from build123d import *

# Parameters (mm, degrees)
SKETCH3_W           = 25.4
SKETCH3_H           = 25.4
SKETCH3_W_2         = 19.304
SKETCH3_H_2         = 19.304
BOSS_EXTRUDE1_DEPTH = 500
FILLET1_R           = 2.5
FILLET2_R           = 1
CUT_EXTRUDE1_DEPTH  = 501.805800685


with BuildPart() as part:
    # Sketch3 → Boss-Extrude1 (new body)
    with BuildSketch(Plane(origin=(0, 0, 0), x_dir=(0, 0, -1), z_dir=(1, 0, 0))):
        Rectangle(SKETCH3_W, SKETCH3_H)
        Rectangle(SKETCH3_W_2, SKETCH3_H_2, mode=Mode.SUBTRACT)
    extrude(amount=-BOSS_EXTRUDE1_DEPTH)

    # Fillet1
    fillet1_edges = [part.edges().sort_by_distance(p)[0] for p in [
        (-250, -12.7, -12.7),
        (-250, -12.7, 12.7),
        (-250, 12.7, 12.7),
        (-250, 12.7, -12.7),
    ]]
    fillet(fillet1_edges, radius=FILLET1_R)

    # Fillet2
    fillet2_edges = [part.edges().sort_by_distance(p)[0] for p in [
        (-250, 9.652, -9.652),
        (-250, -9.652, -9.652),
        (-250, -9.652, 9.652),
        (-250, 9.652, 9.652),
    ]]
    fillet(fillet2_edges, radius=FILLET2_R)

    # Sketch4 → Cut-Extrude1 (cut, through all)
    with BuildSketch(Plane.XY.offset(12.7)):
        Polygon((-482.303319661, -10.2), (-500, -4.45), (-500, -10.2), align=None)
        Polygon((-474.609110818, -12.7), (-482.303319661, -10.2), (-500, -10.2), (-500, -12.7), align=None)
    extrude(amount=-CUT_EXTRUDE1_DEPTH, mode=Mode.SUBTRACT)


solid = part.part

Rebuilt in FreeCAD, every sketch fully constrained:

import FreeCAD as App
import Part
import Sketcher

V = App.Vector
Q = App.Units.Quantity


def edges_at(feature, points):
    """Names of the edges that pass closest to the given points."""
    edges = feature.Shape.Edges
    near = lambda p: min(range(len(edges)), key=lambda i: edges[i].distToShape(Part.Vertex(*p))[0])
    return sorted({f"Edge{near(p) + 1}" for p in points})


def add_polygon(sketch, points):
    """Adds a closed chain of lines whose ends are joined by coincident constraints."""
    first, n = sketch.GeometryCount, len(points)
    for a, b in zip(points, points[1:] + points[:1]):
        sketch.addGeometry(Part.LineSegment(App.Vector(*a, 0), App.Vector(*b, 0)), False)
    for i in range(n):
        sketch.addConstraint(Sketcher.Constraint("Coincident", first + i, 2, first + (i + 1) % n, 1))

doc = App.newDocument("Part")
body = doc.addObject("PartDesign::Body", "Body")

# Sketch on YZ plane
sketch1 = body.newObject("Sketcher::SketchObject", "Sketch")
sketch1.AttachmentSupport = (doc.getObject("YZ_Plane"), [""])
sketch1.MapMode = "FlatFace"
add_polygon(sketch1, [(13, 13), (-13, 13), (-13, -13), (13, -13)])  # lines 0-3
add_polygon(sketch1, [(-10, -10), (-10, 10), (10, 10), (10, -10)])  # lines 4-7
sketch1.addConstraint(Sketcher.Constraint("Horizontal", 0))
sketch1.addConstraint(Sketcher.Constraint("Vertical", 1))
sketch1.addConstraint(Sketcher.Constraint("Horizontal", 2))
sketch1.addConstraint(Sketcher.Constraint("Vertical", 3))
sketch1.addConstraint(Sketcher.Constraint("Vertical", 4))
sketch1.addConstraint(Sketcher.Constraint("Horizontal", 5))
sketch1.addConstraint(Sketcher.Constraint("Vertical", 6))
sketch1.addConstraint(Sketcher.Constraint("Horizontal", 7))
sketch1.addConstraint(Sketcher.Constraint("Symmetric", 0, 2, 2, 2, -1, 1))
sketch1.addConstraint(Sketcher.Constraint("Symmetric", 4, 2, 6, 2, -1, 1))
sketch1.addConstraint(Sketcher.Constraint("Equal", 2, 1))
sketch1.addConstraint(Sketcher.Constraint("Equal", 7, 4))
sketch1.addConstraint(Sketcher.Constraint("DistanceX", 0, 2, 0, 1, Q("25.4 mm")))
sketch1.addConstraint(Sketcher.Constraint("DistanceX", 5, 1, 5, 2, Q("19.304 mm")))
pad1 = body.newObject("PartDesign::Pad", "Pad")
pad1.Profile = sketch1
pad1.Length = 500
pad1.Reversed = True
doc.recompute()

fillet = body.newObject("PartDesign::Fillet", "Fillet")
fillet.Base = (pad1, edges_at(pad1, [
    (-250, -12.7, -12.7),
    (-250, -12.7, 12.7),
    (-250, 12.7, 12.7),
    (-250, 12.7, -12.7),
]))
fillet.Radius = 2.5
doc.recompute()

fillet2 = body.newObject("PartDesign::Fillet", "Fillet001")
fillet2.Base = (fillet, edges_at(fillet, [
    (-250, 9.652, -9.652),
    (-250, -9.652, -9.652),
    (-250, -9.652, 9.652),
    (-250, 9.652, 9.652),
]))
fillet2.Radius = 1

# Sketch on XY plane
sketch2 = body.newObject("Sketcher::SketchObject", "Sketch001")
sketch2.AttachmentSupport = (doc.getObject("XY_Plane"), [""])
sketch2.MapMode = "FlatFace"
sketch2.AttachmentOffset = App.Placement(V(0, 0, 12.7), App.Rotation())
add_polygon(sketch2, [(-482, -10), (-500, -4), (-500, -13), (-475, -13)])  # lines 0-3
sketch2.addConstraint(Sketcher.Constraint("Vertical", 1))
sketch2.addConstraint(Sketcher.Constraint("Horizontal", 2))
sketch2.addConstraint(Sketcher.Constraint("Parallel", 0, 3))
sketch2.addConstraint(Sketcher.Constraint("Angle", 0, Q("162 deg")))
sketch2.addConstraint(Sketcher.Constraint("DistanceX", 0, 2, -1, 1, Q("500 mm")))
sketch2.addConstraint(Sketcher.Constraint("DistanceY", 1, 2, 1, 1, Q("8.25 mm")))
sketch2.addConstraint(Sketcher.Constraint("DistanceY", 1, 2, -1, 1, Q("12.7 mm")))
sketch2.addConstraint(Sketcher.Constraint("DistanceY", 3, 2, -1, 1, Q("10.2 mm")))
pocket1 = body.newObject("PartDesign::Pocket", "Pocket")
pocket1.Profile = sketch2
pocket1.Type = "ThroughAll"

doc.recompute()
